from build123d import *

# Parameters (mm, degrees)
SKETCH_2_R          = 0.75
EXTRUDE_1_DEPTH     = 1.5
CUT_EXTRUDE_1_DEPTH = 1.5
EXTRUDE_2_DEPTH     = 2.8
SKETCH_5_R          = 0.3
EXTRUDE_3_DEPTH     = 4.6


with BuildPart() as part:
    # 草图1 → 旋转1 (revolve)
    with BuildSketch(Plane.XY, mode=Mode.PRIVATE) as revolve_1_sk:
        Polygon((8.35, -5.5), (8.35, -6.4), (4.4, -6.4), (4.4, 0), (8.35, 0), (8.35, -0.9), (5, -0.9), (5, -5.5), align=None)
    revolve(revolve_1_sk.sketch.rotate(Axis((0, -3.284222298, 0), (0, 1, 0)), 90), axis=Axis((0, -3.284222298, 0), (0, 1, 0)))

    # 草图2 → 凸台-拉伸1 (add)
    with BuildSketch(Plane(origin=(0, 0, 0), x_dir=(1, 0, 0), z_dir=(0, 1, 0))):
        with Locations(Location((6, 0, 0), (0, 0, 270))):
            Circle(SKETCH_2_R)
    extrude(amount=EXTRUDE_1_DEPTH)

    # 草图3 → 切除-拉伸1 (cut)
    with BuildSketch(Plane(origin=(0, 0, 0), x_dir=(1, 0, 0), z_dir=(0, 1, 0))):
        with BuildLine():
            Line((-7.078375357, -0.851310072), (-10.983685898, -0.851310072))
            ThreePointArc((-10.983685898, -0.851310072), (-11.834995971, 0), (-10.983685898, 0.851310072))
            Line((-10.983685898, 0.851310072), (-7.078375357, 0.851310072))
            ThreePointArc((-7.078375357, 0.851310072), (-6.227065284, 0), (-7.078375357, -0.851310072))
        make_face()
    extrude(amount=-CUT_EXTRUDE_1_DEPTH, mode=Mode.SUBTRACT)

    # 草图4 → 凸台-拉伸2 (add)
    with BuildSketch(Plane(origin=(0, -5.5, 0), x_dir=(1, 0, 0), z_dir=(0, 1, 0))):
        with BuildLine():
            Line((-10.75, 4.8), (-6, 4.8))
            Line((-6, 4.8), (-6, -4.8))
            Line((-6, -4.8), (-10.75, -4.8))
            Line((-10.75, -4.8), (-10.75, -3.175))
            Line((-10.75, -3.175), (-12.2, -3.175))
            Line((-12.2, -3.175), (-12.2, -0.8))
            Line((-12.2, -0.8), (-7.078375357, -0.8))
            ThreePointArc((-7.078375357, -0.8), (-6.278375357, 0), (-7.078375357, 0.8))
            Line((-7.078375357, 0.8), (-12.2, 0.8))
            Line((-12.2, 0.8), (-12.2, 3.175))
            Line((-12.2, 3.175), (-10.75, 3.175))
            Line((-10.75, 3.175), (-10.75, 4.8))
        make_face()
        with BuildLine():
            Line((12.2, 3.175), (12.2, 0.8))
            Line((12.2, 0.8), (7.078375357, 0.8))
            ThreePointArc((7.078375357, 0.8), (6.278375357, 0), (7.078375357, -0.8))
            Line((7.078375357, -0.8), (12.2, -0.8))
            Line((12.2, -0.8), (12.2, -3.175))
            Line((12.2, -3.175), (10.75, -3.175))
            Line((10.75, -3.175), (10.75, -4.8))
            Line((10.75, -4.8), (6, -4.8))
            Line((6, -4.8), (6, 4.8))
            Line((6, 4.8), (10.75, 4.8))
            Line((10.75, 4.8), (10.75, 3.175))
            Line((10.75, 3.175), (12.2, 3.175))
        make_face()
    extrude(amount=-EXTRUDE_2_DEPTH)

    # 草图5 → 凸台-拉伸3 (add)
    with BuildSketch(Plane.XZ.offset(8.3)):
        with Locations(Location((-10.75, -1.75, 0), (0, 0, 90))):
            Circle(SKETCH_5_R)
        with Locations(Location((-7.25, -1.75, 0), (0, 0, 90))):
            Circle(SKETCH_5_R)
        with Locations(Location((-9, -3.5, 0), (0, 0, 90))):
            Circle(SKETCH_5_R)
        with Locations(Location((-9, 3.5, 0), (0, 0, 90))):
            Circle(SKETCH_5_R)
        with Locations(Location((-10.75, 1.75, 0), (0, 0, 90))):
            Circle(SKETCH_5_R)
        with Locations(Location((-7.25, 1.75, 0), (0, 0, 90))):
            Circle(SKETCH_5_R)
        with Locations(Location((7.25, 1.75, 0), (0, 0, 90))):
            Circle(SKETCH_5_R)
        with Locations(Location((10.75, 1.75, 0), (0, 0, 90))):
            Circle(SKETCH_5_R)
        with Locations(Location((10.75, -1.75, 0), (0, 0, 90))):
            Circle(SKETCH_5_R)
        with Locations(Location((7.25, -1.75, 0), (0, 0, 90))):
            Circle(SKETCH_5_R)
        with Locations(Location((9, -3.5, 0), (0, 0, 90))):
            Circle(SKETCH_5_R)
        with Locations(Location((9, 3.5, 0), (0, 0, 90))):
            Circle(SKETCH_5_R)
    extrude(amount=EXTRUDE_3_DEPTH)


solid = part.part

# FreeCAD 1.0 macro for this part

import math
import FreeCAD as App
import Part
import Sketcher
from FreeCAD import Vector


def add_polygon(sketch, points):
    """Adds a closed chain of lines whose ends are joined by coincident constraints."""
    first, n = sketch.GeometryCount, len(points)
    for a, b in zip(points, points[1:] + points[:1]):
        sketch.addGeometry(Part.LineSegment(App.Vector(*a, 0), App.Vector(*b, 0)), False)
    for i in range(n):
        sketch.addConstraint(Sketcher.Constraint("Coincident", first + i, 2, first + (i + 1) % n, 1))

doc = App.newDocument("Part")
body = doc.addObject("PartDesign::Body", "Body")

# Sketch on XY plane
sketch1 = body.newObject("Sketcher::SketchObject", "Sketch")
sketch1.AttachmentSupport = (doc.getObject("XY_Plane"), [""])
sketch1.MapMode = "FlatFace"
add_polygon(sketch1, [(8.3, -6.4), (8.3, -5.5), (5, -5.5), (5, -0.9), (8.3, -0.9), (8.3, 0), (4.4, 0), (4.4, -6.4)])  # lines 0-7
sketch1.addConstraint([
    Sketcher.Constraint("Vertical", 0),
    Sketcher.Constraint("Horizontal", 1),
    Sketcher.Constraint("Vertical", 2),
    Sketcher.Constraint("Horizontal", 3),
    Sketcher.Constraint("Vertical", 4),
    Sketcher.Constraint("Horizontal", 5),
    Sketcher.Constraint("Vertical", 6),
    Sketcher.Constraint("Horizontal", 7),
    Sketcher.Constraint("PointOnObject", 4, 2, -1),
    Sketcher.Constraint("Vertical", 0, 2, 3, 2),
    Sketcher.Constraint("Equal", 0, 4),
    Sketcher.Constraint("DistanceY", 0, 1, 0, 2, 0.9),
    Sketcher.Constraint("DistanceY", 2, 1, 2, 2, 4.6),
    Sketcher.Constraint("DistanceX", -1, 1, 1, 2, 5.0),
    Sketcher.Constraint("DistanceX", 1, 2, 1, 1, 3.35),
    Sketcher.Constraint("DistanceX", 5, 2, 5, 1, 3.95),
])
revolution = body.newObject("PartDesign::Revolution", "Revolution")
revolution.Profile = sketch1
revolution.ReferenceAxis = (sketch1, ["V_Axis"])
revolution.Angle = 360

# Sketch on XZ plane
sketch2 = body.newObject("Sketcher::SketchObject", "Sketch001")
sketch2.AttachmentSupport = (doc.getObject("XZ_Plane"), [""])
sketch2.MapMode = "FlatFace"
sketch2.addGeometry(Part.Circle(Vector(6, 0, 0), Vector(0, 0, 1), 0.8), False)
sketch2.addConstraint([
    Sketcher.Constraint("PointOnObject", 0, 3, -1),
    Sketcher.Constraint("Diameter", 0, 1.5),
    Sketcher.Constraint("DistanceX", -1, 1, 0, 3, 6.0),
])
pad1 = body.newObject("PartDesign::Pad", "Pad")
pad1.Profile = sketch2
pad1.Length = 1.5
pad1.Reversed = True

# Sketch on XZ plane
sketch3 = body.newObject("Sketcher::SketchObject", "Sketch002")
sketch3.AttachmentSupport = (doc.getObject("XZ_Plane"), [""])
sketch3.MapMode = "FlatFace"
sketch3.addGeometry([
    Part.LineSegment(Vector(-11, 0.9, 0), Vector(-7.1, 0.9, 0)),
    Part.ArcOfCircle(Part.Circle(Vector(-7.1, 0, 0), Vector(0, 0, 1), 0.9), math.radians(-90), math.radians(90)),
    Part.LineSegment(Vector(-7.1, -0.9, 0), Vector(-11, -0.9, 0)),
    Part.ArcOfCircle(Part.Circle(Vector(-11, 0, 0), Vector(0, 0, 1), 0.9), math.radians(90), math.radians(270)),
], False)
sketch3.addConstraint([
    Sketcher.Constraint("Tangent", 0, 2, 1, 2),
    Sketcher.Constraint("Tangent", 1, 1, 2, 1),
    Sketcher.Constraint("Tangent", 2, 2, 3, 2),
    Sketcher.Constraint("Tangent", 3, 1, 0, 1),
    Sketcher.Constraint("Horizontal", 0),
    Sketcher.Constraint("Horizontal", 2),
    Sketcher.Constraint("PointOnObject", 1, 3, -1),
    Sketcher.Constraint("Radius", 1, 0.85131),
    Sketcher.Constraint("DistanceX", 0, 1, 0, 2, 3.905311),
    Sketcher.Constraint("DistanceX", 1, 3, -1, 1, 7.078375),
])
pocket1 = body.newObject("PartDesign::Pocket", "Pocket")
pocket1.Profile = sketch3
pocket1.Length = 1.5
pocket1.Reversed = True

# Sketch on XZ plane
sketch4 = body.newObject("Sketcher::SketchObject", "Sketch003")
sketch4.AttachmentSupport = (doc.getObject("XZ_Plane"), [""])
sketch4.MapMode = "FlatFace"
sketch4.AttachmentOffset = App.Placement(Vector(0, 0, 5.5), App.Rotation())
sketch4.addGeometry([
    Part.LineSegment(Vector(-6, -4.8, 0), Vector(-10.8, -4.8, 0)),  # 0
    Part.LineSegment(Vector(-10.8, -4.8, 0), Vector(-10.8, -3.2, 0)),  # 1
    Part.LineSegment(Vector(-10.8, -3.2, 0), Vector(-12.2, -3.2, 0)),  # 2
    Part.LineSegment(Vector(-12.2, -3.2, 0), Vector(-12.2, -0.8, 0)),  # 3
    Part.LineSegment(Vector(-12.2, -0.8, 0), Vector(-7.1, -0.8, 0)),  # 4
    Part.ArcOfCircle(Part.Circle(Vector(-7.1, 0, 0), Vector(0, 0, 1), 0.8), math.radians(-90), math.radians(90)),  # 5
    Part.LineSegment(Vector(-7.1, 0.8, 0), Vector(-12.2, 0.8, 0)),  # 6
    Part.LineSegment(Vector(-12.2, 0.8, 0), Vector(-12.2, 3.2, 0)),  # 7
    Part.LineSegment(Vector(-12.2, 3.2, 0), Vector(-10.8, 3.2, 0)),  # 8
    Part.LineSegment(Vector(-10.8, 3.2, 0), Vector(-10.8, 4.8, 0)),  # 9
    Part.LineSegment(Vector(-10.8, 4.8, 0), Vector(-6, 4.8, 0)),  # 10
    Part.LineSegment(Vector(-6, 4.8, 0), Vector(-6, -4.8, 0)),  # 11
    Part.LineSegment(Vector(12.2, -0.8, 0), Vector(12.2, -3.2, 0)),  # 12
    Part.LineSegment(Vector(12.2, -3.2, 0), Vector(10.8, -3.2, 0)),  # 13
    Part.LineSegment(Vector(10.8, -3.2, 0), Vector(10.8, -4.8, 0)),  # 14
    Part.LineSegment(Vector(10.8, -4.8, 0), Vector(6, -4.8, 0)),  # 15
    Part.LineSegment(Vector(6, -4.8, 0), Vector(6, 4.8, 0)),  # 16
    Part.LineSegment(Vector(6, 4.8, 0), Vector(10.8, 4.8, 0)),  # 17
    Part.LineSegment(Vector(10.8, 4.8, 0), Vector(10.8, 3.2, 0)),  # 18
    Part.LineSegment(Vector(10.8, 3.2, 0), Vector(12.2, 3.2, 0)),  # 19
    Part.LineSegment(Vector(12.2, 3.2, 0), Vector(12.2, 0.8, 0)),  # 20
    Part.LineSegment(Vector(12.2, 0.8, 0), Vector(7.1, 0.8, 0)),  # 21
    Part.ArcOfCircle(Part.Circle(Vector(7.1, 0, 0), Vector(0, 0, 1), 0.8), math.radians(90), math.radians(270)),  # 22
    Part.LineSegment(Vector(7.1, -0.8, 0), Vector(12.2, -0.8, 0)),  # 23
], False)
sketch4.addConstraint([
    Sketcher.Constraint("Coincident", 0, 2, 1, 1),
    Sketcher.Constraint("Coincident", 1, 2, 2, 1),
    Sketcher.Constraint("Coincident", 2, 2, 3, 1),
    Sketcher.Constraint("Coincident", 3, 2, 4, 1),
    Sketcher.Constraint("Tangent", 4, 2, 5, 1),
    Sketcher.Constraint("Tangent", 5, 2, 6, 1),
    Sketcher.Constraint("Coincident", 6, 2, 7, 1),
    Sketcher.Constraint("Coincident", 7, 2, 8, 1),
    Sketcher.Constraint("Coincident", 8, 2, 9, 1),
    Sketcher.Constraint("Coincident", 9, 2, 10, 1),
    Sketcher.Constraint("Coincident", 10, 2, 11, 1),
    Sketcher.Constraint("Coincident", 11, 2, 0, 1),
    Sketcher.Constraint("Coincident", 12, 2, 13, 1),
    Sketcher.Constraint("Coincident", 13, 2, 14, 1),
    Sketcher.Constraint("Coincident", 14, 2, 15, 1),
    Sketcher.Constraint("Coincident", 15, 2, 16, 1),
    Sketcher.Constraint("Coincident", 16, 2, 17, 1),
    Sketcher.Constraint("Coincident", 17, 2, 18, 1),
    Sketcher.Constraint("Coincident", 18, 2, 19, 1),
    Sketcher.Constraint("Coincident", 19, 2, 20, 1),
    Sketcher.Constraint("Coincident", 20, 2, 21, 1),
    Sketcher.Constraint("Tangent", 21, 2, 22, 1),
    Sketcher.Constraint("Tangent", 22, 2, 23, 1),
    Sketcher.Constraint("Coincident", 23, 2, 12, 1),
    Sketcher.Constraint("Horizontal", 0),
    Sketcher.Constraint("Vertical", 1),
    Sketcher.Constraint("Horizontal", 2),
    Sketcher.Constraint("Vertical", 3),
    Sketcher.Constraint("Horizontal", 4),
    Sketcher.Constraint("Horizontal", 6),
    Sketcher.Constraint("Vertical", 7),
    Sketcher.Constraint("Horizontal", 8),
    Sketcher.Constraint("Vertical", 9),
    Sketcher.Constraint("Horizontal", 10),
    Sketcher.Constraint("Vertical", 11),
    Sketcher.Constraint("Vertical", 12),
    Sketcher.Constraint("Horizontal", 13),
    Sketcher.Constraint("Vertical", 14),
    Sketcher.Constraint("Horizontal", 15),
    Sketcher.Constraint("Vertical", 16),
    Sketcher.Constraint("Horizontal", 17),
    Sketcher.Constraint("Vertical", 18),
    Sketcher.Constraint("Horizontal", 19),
    Sketcher.Constraint("Vertical", 20),
    Sketcher.Constraint("Horizontal", 21),
    Sketcher.Constraint("Horizontal", 23),
    Sketcher.Constraint("Equal", 5, 22),
    Sketcher.Constraint("Symmetric", 5, 3, 22, 3, -1, 1),
    Sketcher.Constraint("Symmetric", 7, 2, 12, 2, -1, 1),
    Sketcher.Constraint("Symmetric", 9, 2, 14, 2, -1, 1),
    Sketcher.Constraint("Symmetric", 11, 2, 16, 2, -1, 1),
    Sketcher.Constraint("Symmetric", 1, 2, 18, 2, -1, 1),
    Sketcher.Constraint("Symmetric", 2, 2, 12, 2, -2),
    Sketcher.Constraint("Symmetric", 0, 2, 14, 2, -2),
    Sketcher.Constraint("Symmetric", 6, 2, 20, 2, -2),
    Sketcher.Constraint("Radius", 5, 0.8),
    Sketcher.Constraint("DistanceY", 11, 2, 11, 1, 9.6),
    Sketcher.Constraint("DistanceX", 10, 2, -1, 1, 6.0),
    Sketcher.Constraint("DistanceX", 0, 2, 0, 1, 4.75),
    Sketcher.Constraint("DistanceX", 2, 2, 2, 1, 1.45),
    Sketcher.Constraint("DistanceY", 1, 1, 1, 2, 1.625),
    Sketcher.Constraint("DistanceX", 4, 1, 4, 2, 5.121625),
])
pad2 = body.newObject("PartDesign::Pad", "Pad001")
pad2.Profile = sketch4
pad2.Length = 2.8

# Sketch on XZ plane
sketch5 = body.newObject("Sketcher::SketchObject", "Sketch004")
sketch5.AttachmentSupport = (doc.getObject("XZ_Plane"), [""])
sketch5.MapMode = "FlatFace"
sketch5.AttachmentOffset = App.Placement(Vector(0, 0, 8.3), App.Rotation())
sketch5.addGeometry([
    Part.Circle(Vector(-10.75, -1.75, 0), Vector(0, 0, 1), 0.3),  # 0
    Part.Circle(Vector(-7.25, -1.75, 0), Vector(0, 0, 1), 0.3),  # 1
    Part.Circle(Vector(-9, -3.5, 0), Vector(0, 0, 1), 0.3),  # 2
    Part.Circle(Vector(-9, 3.5, 0), Vector(0, 0, 1), 0.3),  # 3
    Part.Circle(Vector(-10.75, 1.75, 0), Vector(0, 0, 1), 0.3),  # 4
    Part.Circle(Vector(-7.25, 1.75, 0), Vector(0, 0, 1), 0.3),  # 5
    Part.Circle(Vector(7.25, 1.75, 0), Vector(0, 0, 1), 0.3),  # 6
    Part.Circle(Vector(10.75, 1.75, 0), Vector(0, 0, 1), 0.3),  # 7
    Part.Circle(Vector(10.75, -1.75, 0), Vector(0, 0, 1), 0.3),  # 8
    Part.Circle(Vector(7.25, -1.75, 0), Vector(0, 0, 1), 0.3),  # 9
    Part.Circle(Vector(9, -3.5, 0), Vector(0, 0, 1), 0.3),  # 10
    Part.Circle(Vector(9, 3.5, 0), Vector(0, 0, 1), 0.3),  # 11
], False)
sketch5.addConstraint([
    Sketcher.Constraint("Equal", 0, 1),
    Sketcher.Constraint("Equal", 1, 2),
    Sketcher.Constraint("Equal", 2, 3),
    Sketcher.Constraint("Equal", 3, 4),
    Sketcher.Constraint("Equal", 4, 5),
    Sketcher.Constraint("Equal", 5, 6),
    Sketcher.Constraint("Equal", 6, 7),
    Sketcher.Constraint("Equal", 7, 8),
    Sketcher.Constraint("Equal", 8, 9),
    Sketcher.Constraint("Equal", 9, 10),
    Sketcher.Constraint("Equal", 10, 11),
    Sketcher.Constraint("Symmetric", 1, 3, 6, 3, -1, 1),
    Sketcher.Constraint("Symmetric", 0, 3, 7, 3, -1, 1),
    Sketcher.Constraint("Symmetric", 4, 3, 8, 3, -1, 1),
    Sketcher.Constraint("Symmetric", 5, 3, 9, 3, -1, 1),
    Sketcher.Constraint("Symmetric", 3, 3, 10, 3, -1, 1),
    Sketcher.Constraint("Symmetric", 2, 3, 11, 3, -1, 1),
    Sketcher.Constraint("Symmetric", 5, 3, 6, 3, -2),
    Sketcher.Constraint("Symmetric", 4, 3, 7, 3, -2),
    Sketcher.Constraint("Symmetric", 2, 3, 10, 3, -2),
    Sketcher.Constraint("Horizontal", 0, 3, 1, 3),
    Sketcher.Constraint("Diameter", 0, 0.6),
    Sketcher.Constraint("DistanceX", 2, 3, -1, 1, 9.0),
    Sketcher.Constraint("DistanceY", 2, 3, 3, 3, 7.0),
    Sketcher.Constraint("DistanceX", 4, 3, 6, 3, 18.0),
    Sketcher.Constraint("DistanceX", 0, 3, 1, 3, 3.5),
    Sketcher.Constraint("DistanceY", 0, 3, 4, 3, 3.5),
])
pad3 = body.newObject("PartDesign::Pad", "Pad002")
pad3.Profile = sketch5
pad3.Length = 4.6

doc.recompute()
